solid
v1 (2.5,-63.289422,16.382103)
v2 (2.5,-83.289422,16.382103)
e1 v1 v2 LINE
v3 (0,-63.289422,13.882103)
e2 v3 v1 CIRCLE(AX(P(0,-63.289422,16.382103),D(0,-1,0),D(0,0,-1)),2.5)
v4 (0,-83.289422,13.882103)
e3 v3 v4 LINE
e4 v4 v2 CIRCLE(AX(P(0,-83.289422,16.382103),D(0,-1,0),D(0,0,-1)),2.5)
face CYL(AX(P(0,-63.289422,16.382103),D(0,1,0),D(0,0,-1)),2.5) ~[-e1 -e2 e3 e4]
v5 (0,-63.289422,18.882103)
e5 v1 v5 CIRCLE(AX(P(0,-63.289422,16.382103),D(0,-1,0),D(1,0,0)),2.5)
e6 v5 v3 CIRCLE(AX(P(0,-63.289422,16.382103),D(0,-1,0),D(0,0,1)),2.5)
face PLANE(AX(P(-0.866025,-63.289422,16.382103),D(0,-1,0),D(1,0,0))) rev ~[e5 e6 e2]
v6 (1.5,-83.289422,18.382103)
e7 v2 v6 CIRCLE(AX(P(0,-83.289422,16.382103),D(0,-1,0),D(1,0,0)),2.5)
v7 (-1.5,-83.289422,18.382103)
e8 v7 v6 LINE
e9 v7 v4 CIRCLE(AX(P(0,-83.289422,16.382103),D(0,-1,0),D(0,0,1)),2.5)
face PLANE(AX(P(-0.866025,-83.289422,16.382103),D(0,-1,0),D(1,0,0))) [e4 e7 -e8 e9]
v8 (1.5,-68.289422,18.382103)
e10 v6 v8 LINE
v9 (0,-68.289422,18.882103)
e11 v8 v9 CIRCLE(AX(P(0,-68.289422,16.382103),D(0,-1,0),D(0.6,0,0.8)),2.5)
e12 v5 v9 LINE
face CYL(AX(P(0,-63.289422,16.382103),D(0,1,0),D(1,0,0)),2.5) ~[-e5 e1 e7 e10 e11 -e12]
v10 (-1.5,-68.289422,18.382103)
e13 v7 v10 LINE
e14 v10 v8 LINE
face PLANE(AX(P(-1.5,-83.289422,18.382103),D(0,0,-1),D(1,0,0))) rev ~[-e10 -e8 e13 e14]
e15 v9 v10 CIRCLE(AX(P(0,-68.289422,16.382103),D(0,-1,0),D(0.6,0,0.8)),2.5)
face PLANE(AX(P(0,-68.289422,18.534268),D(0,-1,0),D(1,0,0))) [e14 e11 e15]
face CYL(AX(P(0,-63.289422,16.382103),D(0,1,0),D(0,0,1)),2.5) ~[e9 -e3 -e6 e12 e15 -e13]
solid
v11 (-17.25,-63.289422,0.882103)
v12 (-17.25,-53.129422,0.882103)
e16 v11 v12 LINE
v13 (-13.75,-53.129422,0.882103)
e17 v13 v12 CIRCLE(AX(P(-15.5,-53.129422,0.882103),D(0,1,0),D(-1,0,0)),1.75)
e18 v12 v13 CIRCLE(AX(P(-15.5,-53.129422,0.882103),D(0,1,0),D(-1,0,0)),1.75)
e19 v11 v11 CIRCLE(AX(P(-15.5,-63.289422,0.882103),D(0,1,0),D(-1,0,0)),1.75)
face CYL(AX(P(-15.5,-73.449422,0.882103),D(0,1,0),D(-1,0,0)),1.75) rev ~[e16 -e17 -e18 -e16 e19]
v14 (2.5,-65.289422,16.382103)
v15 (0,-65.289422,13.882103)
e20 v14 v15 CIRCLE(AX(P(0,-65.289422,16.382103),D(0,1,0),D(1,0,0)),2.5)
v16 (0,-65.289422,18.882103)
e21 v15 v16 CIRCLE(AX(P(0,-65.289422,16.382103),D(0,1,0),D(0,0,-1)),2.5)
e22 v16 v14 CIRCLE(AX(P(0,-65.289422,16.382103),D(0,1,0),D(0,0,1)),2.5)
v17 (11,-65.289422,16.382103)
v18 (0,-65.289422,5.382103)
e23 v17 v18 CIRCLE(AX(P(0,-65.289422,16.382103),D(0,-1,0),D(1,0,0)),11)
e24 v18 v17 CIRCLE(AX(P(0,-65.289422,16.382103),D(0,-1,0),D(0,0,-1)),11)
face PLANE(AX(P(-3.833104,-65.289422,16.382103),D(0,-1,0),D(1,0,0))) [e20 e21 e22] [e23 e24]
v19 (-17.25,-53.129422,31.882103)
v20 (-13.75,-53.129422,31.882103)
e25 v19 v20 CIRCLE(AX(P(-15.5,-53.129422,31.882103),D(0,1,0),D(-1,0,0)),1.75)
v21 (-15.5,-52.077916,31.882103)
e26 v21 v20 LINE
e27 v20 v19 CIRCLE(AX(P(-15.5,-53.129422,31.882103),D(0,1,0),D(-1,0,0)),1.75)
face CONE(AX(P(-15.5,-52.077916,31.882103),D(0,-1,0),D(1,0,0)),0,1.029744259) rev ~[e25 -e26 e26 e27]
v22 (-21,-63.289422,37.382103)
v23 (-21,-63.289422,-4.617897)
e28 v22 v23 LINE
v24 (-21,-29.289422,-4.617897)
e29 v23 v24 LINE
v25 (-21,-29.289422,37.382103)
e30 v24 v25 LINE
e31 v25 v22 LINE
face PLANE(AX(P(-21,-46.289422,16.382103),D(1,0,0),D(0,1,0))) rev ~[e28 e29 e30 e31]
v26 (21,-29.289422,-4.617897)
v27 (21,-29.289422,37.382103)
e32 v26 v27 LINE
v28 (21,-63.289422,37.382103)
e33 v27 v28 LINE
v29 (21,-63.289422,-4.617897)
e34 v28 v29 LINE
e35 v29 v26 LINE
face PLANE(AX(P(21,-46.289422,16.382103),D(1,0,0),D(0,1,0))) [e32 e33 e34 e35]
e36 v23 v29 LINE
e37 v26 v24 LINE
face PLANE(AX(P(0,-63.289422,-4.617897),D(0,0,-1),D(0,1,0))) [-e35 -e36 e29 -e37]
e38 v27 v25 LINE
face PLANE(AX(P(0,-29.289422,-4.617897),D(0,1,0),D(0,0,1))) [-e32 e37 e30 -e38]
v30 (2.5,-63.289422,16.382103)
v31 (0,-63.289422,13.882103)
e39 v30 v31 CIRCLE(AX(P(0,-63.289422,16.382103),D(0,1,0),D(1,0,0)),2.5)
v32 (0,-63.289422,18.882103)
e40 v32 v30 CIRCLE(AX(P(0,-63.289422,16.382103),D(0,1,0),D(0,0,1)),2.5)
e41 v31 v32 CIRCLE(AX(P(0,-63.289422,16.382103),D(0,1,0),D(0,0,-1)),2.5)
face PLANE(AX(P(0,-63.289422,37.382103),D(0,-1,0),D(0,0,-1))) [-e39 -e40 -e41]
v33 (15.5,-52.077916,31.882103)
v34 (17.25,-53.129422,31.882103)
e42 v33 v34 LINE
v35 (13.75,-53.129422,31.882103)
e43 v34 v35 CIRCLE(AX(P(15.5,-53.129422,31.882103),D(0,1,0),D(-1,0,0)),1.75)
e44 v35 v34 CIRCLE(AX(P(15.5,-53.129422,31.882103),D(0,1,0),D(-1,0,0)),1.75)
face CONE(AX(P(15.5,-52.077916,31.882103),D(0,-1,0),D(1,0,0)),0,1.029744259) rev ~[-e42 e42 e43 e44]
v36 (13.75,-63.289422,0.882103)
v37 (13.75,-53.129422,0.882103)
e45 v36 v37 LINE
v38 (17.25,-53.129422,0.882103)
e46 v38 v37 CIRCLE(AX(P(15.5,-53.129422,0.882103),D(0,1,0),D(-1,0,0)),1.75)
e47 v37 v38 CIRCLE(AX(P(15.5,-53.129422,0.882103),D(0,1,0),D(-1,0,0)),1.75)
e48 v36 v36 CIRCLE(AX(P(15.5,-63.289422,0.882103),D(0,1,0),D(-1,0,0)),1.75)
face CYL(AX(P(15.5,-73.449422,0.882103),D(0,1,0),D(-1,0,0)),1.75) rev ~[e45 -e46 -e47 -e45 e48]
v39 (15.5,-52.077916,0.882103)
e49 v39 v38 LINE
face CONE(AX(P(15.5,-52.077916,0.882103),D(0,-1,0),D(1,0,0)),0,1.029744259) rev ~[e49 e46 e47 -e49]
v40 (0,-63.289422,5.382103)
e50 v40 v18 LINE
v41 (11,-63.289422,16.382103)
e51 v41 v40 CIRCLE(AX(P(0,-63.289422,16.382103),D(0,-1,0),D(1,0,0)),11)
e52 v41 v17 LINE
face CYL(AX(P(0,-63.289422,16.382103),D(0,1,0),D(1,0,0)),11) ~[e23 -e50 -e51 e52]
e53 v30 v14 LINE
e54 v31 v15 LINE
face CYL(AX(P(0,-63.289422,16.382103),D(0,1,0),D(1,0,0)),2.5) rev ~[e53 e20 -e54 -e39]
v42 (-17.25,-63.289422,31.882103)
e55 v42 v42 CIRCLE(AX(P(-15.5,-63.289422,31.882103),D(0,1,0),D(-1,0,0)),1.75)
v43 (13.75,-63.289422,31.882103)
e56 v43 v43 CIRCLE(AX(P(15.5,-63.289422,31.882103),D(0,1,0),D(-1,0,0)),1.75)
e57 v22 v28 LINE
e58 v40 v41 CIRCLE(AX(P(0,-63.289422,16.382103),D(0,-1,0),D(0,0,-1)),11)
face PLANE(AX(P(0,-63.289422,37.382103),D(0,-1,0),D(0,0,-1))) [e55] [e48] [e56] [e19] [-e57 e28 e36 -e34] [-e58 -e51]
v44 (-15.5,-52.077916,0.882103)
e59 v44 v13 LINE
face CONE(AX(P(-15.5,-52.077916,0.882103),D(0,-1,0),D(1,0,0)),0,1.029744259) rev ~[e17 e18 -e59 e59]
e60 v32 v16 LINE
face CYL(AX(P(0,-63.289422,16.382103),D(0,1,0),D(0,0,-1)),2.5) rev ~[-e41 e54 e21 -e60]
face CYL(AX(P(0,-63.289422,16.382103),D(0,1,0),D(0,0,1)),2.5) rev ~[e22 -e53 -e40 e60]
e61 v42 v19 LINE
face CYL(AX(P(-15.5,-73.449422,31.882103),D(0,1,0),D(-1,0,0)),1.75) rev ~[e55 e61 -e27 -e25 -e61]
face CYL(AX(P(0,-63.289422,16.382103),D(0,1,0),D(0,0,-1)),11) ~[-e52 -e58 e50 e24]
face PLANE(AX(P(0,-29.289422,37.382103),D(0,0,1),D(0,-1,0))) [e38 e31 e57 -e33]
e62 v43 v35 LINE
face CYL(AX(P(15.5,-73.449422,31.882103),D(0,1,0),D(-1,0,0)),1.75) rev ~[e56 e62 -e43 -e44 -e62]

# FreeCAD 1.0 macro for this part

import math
import FreeCAD as App
import Part
import Sketcher

V = App.Vector
Q = App.Units.Quantity

doc = App.newDocument("Part")
params = doc.addObject("Spreadsheet::Sheet", "Params")
for row, (alias, value) in enumerate([
    ("sketch1_width", "34 mm"),
    ("sketch1_height", "42 mm"),
    ("pad1_length", "42 mm"),
    ("sketch2_radius", "11 mm"),
    ("sketch2_radius2", "2.5 mm"),
    ("pad2_length", "2 mm"),
    ("sketch3_diameter", "3.5 mm"),
    ("hole_diameter", "3.5 mm"),
    ("hole_depth", "10.16 mm"),
    ("sketch4_radius", "2.5 mm"),
    ("pad3_length", "20 mm"),
    ("sketch5_radius", "2.5 mm"),
    ("sketch5_width", "3 mm"),
    ("pocket1_length", "15 mm"),
], start=1):
    params.set(f"A{row}", alias)
    params.set(f"B{row}", "=" + value)
    params.setAlias(f"B{row}", alias)

body = doc.addObject("PartDesign::Body", "Body")

# Sketch on YZ plane
sketch1 = body.newObject("Sketcher::SketchObject", "Sketch")
sketch1.AttachmentSupport = (doc.getObject("YZ_Plane"), [""])
sketch1.MapMode = "FlatFace"
sketch1.addGeometry(Part.LineSegment(V(-29, 37, 0), V(-63, 37, 0)), False)
sketch1.addGeometry(Part.LineSegment(V(-63, 37, 0), V(-63, -5, 0)), False)
sketch1.addGeometry(Part.LineSegment(V(-63, -5, 0), V(-29, -5, 0)), False)
sketch1.addGeometry(Part.LineSegment(V(-29, -5, 0), V(-29, 37, 0)), False)
sketch1.addConstraint(Sketcher.Constraint("Coincident", 0, 2, 1, 1))
sketch1.addConstraint(Sketcher.Constraint("Coincident", 1, 2, 2, 1))
sketch1.addConstraint(Sketcher.Constraint("Coincident", 2, 2, 3, 1))
sketch1.addConstraint(Sketcher.Constraint("Coincident", 3, 2, 0, 1))
sketch1.addConstraint(Sketcher.Constraint("Horizontal", 0))
sketch1.addConstraint(Sketcher.Constraint("Vertical", 1))
sketch1.addConstraint(Sketcher.Constraint("Horizontal", 2))
sketch1.addConstraint(Sketcher.Constraint("Vertical", 3))
sketch1.addConstraint(Sketcher.Constraint("DistanceX", 0, 2, 0, 1, Q("34 mm")))
sketch1.addConstraint(Sketcher.Constraint("DistanceY", 1, 2, 1, 1, Q("42 mm")))
sketch1.addConstraint(Sketcher.Constraint("DistanceX", 0, 2, -1, 1, Q("63.289422 mm")))
sketch1.addConstraint(Sketcher.Constraint("DistanceY", -1, 1, 0, 2, Q("37.382103 mm")))
sketch1.setExpression("Constraints[8]", "Params.sketch1_width")
sketch1.setExpression("Constraints[9]", "Params.sketch1_height")
pad1 = body.newObject("PartDesign::Pad", "Pad")
pad1.Profile = sketch1
pad1.setExpression("Length", "Params.pad1_length")
pad1.Midplane = True

# Sketch on XZ plane
sketch2 = body.newObject("Sketcher::SketchObject", "Sketch001")
sketch2.AttachmentSupport = (doc.getObject("XZ_Plane"), [""])
sketch2.MapMode = "FlatFace"
sketch2.AttachmentOffset = App.Placement(V(0, 0, 63.289422), App.Rotation())
sketch2.addGeometry(Part.ArcOfCircle(Part.Circle(V(0, 16.4, 0), V(0, 0, 1), 11), math.radians(-90), math.radians(0)), False)
sketch2.addGeometry(Part.ArcOfCircle(Part.Circle(V(0, 16.4, 0), V(0, 0, 1), 11), math.radians(0), math.radians(270)), False)
sketch2.addGeometry(Part.ArcOfCircle(Part.Circle(V(0, 16.4, 0), V(0, 0, 1), 2.5), math.radians(90), math.radians(270)), False)
sketch2.addGeometry(Part.ArcOfCircle(Part.Circle(V(0, 16.4, 0), V(0, 0, 1), 2.5), math.radians(0), math.radians(90)), False)
sketch2.addGeometry(Part.ArcOfCircle(Part.Circle(V(0, 16.4, 0), V(0, 0, 1), 2.5), math.radians(-90), math.radians(0)), False)
sketch2.addConstraint(Sketcher.Constraint("Tangent", 0, 1, 1, 2))
sketch2.addConstraint(Sketcher.Constraint("Coincident", 1, 1, 0, 2))
sketch2.addConstraint(Sketcher.Constraint("Tangent", 2, 1, 3, 2))
sketch2.addConstraint(Sketcher.Constraint("Tangent", 3, 1, 4, 2))
sketch2.addConstraint(Sketcher.Constraint("Tangent", 4, 1, 2, 2))
sketch2.addConstraint(Sketcher.Constraint("Coincident", 2, 3, 0, 3))
sketch2.addConstraint(Sketcher.Constraint("PointOnObject", 0, 3, -2))
sketch2.addConstraint(Sketcher.Constraint("PointOnObject", 0, 1, -2))
sketch2.addConstraint(Sketcher.Constraint("PointOnObject", 2, 1, -2))
sketch2.addConstraint(Sketcher.Constraint("PointOnObject", 4, 1, -2))
sketch2.addConstraint(Sketcher.Constraint("Horizontal", 4, 3, 1, 1))
sketch2.addConstraint(Sketcher.Constraint("Horizontal", 1, 1, 3, 1))
sketch2.addConstraint(Sketcher.Constraint("Radius", 0, Q("11 mm")))
sketch2.addConstraint(Sketcher.Constraint("Radius", 2, Q("2.5 mm")))
sketch2.addConstraint(Sketcher.Constraint("DistanceY", -1, 1, 0, 3, Q("16.382103 mm")))
sketch2.setExpression("Constraints[12]", "Params.sketch2_radius")
sketch2.setExpression("Constraints[13]", "Params.sketch2_radius2")
pad2 = body.newObject("PartDesign::Pad", "Pad001")
pad2.Profile = sketch2
pad2.setExpression("Length", "Params.pad2_length")

# Sketch on XZ plane
sketch3 = body.newObject("Sketcher::SketchObject", "Sketch002")
sketch3.AttachmentSupport = (doc.getObject("XZ_Plane"), [""])
sketch3.MapMode = "FlatFace"
sketch3.AttachmentOffset = App.Placement(V(0, 0, 63.289422), App.Rotation())
sketch3.addGeometry(Part.Circle(V(-15.5, 31.9, 0), V(0, 0, 1), 1.8), False)
sketch3.addGeometry(Part.Circle(V(15.5, 31.9, 0), V(0, 0, 1), 1.8), False)
sketch3.addGeometry(Part.Circle(V(15.5, 0.9, 0), V(0, 0, 1), 1.8), False)
sketch3.addGeometry(Part.Circle(V(-15.5, 0.9, 0), V(0, 0, 1), 1.8), False)
sketch3.addConstraint(Sketcher.Constraint("Equal", 0, 1))
sketch3.addConstraint(Sketcher.Constraint("Equal", 1, 2))
sketch3.addConstraint(Sketcher.Constraint("Equal", 2, 3))
sketch3.addConstraint(Sketcher.Constraint("Symmetric", 0, 3, 1, 3, -2))
sketch3.addConstraint(Sketcher.Constraint("Symmetric", 2, 3, 3, 3, -2))
sketch3.addConstraint(Sketcher.Constraint("Vertical", 1, 3, 2, 3))
sketch3.addConstraint(Sketcher.Constraint("Diameter", 0, Q("3.5 mm")))
sketch3.addConstraint(Sketcher.Constraint("DistanceX", 0, 3, 1, 3, Q("31 mm")))
sketch3.addConstraint(Sketcher.Constraint("DistanceY", 2, 3, 1, 3, Q("31 mm")))
sketch3.addConstraint(Sketcher.Constraint("DistanceY", -1, 1, 0, 3, Q("31.882103 mm")))
sketch3.setExpression("Constraints[6]", "Params.sketch3_diameter")
doc.recompute()
hole = body.newObject("PartDesign::Hole", "Hole")
hole.Profile = sketch3
hole.ThreadType = "None"
hole.setExpression("Diameter", "Params.hole_diameter")
hole.DepthType = "Dimension"
hole.setExpression("Depth", "Params.hole_depth")
hole.DrillPoint = "Angled"
hole.DrillPointAngle = 118
body2 = doc.addObject("PartDesign::Body", "Body001")

# Sketch on XZ plane
sketch4 = body2.newObject("Sketcher::SketchObject", "Sketch003")
sketch4.AttachmentSupport = (doc.getObject("XZ_Plane001"), [""])
sketch4.MapMode = "FlatFace"
sketch4.AttachmentOffset = App.Placement(V(0, 0, 63.289422), App.Rotation())
sketch4.addGeometry(Part.ArcOfCircle(Part.Circle(V(0, 16.4, 0), V(0, 0, 1), 2.5), math.radians(90), math.radians(270)), False)
sketch4.addGeometry(Part.ArcOfCircle(Part.Circle(V(0, 16.4, 0), V(0, 0, 1), 2.5), math.radians(-90), math.radians(0)), False)
sketch4.addGeometry(Part.ArcOfCircle(Part.Circle(V(0, 16.4, 0), V(0, 0, 1), 2.5), math.radians(0), math.radians(90)), False)
sketch4.addConstraint(Sketcher.Constraint("Tangent", 0, 2, 1, 1))
sketch4.addConstraint(Sketcher.Constraint("Tangent", 1, 2, 2, 1))
sketch4.addConstraint(Sketcher.Constraint("Tangent", 2, 2, 0, 1))
sketch4.addConstraint(Sketcher.Constraint("PointOnObject", 0, 3, -2))
sketch4.addConstraint(Sketcher.Constraint("PointOnObject", 0, 2, -2))
sketch4.addConstraint(Sketcher.Constraint("PointOnObject", 2, 2, -2))
sketch4.addConstraint(Sketcher.Constraint("Horizontal", 2, 3, 1, 2))
sketch4.addConstraint(Sketcher.Constraint("Radius", 0, Q("2.5 mm")))
sketch4.addConstraint(Sketcher.Constraint("DistanceY", -1, 1, 0, 3, Q("16.382103 mm")))
sketch4.setExpression("Constraints[7]", "Params.sketch4_radius")
pad3 = body2.newObject("PartDesign::Pad", "Pad002")
pad3.Profile = sketch4
pad3.setExpression("Length", "Params.pad3_length")

# Sketch on XZ plane
sketch5 = body2.newObject("Sketcher::SketchObject", "Sketch004")
sketch5.AttachmentSupport = (doc.getObject("XZ_Plane001"), [""])
sketch5.MapMode = "FlatFace"
sketch5.AttachmentOffset = App.Placement(V(0, 0, 83.289422), App.Rotation())
sketch5.addGeometry(Part.ArcOfCircle(Part.Circle(V(0, 16.4, 0), V(0, 0, 1), 2.5), math.radians(53), math.radians(127)), False)
sketch5.addGeometry(Part.LineSegment(V(-1.5, 18.4, 0), V(1.5, 18.4, 0)), False)
sketch5.addConstraint(Sketcher.Constraint("Coincident", 0, 1, 1, 2))
sketch5.addConstraint(Sketcher.Constraint("Coincident", 1, 1, 0, 2))
sketch5.addConstraint(Sketcher.Constraint("Horizontal", 1))
sketch5.addConstraint(Sketcher.Constraint("PointOnObject", 0, 3, -2))
sketch5.addConstraint(Sketcher.Constraint("Radius", 0, Q("2.5 mm")))
sketch5.addConstraint(Sketcher.Constraint("DistanceX", 1, 1, 1, 2, Q("3 mm")))
sketch5.addConstraint(Sketcher.Constraint("DistanceY", -1, 1, 0, 3, Q("16.382103 mm")))
sketch5.setExpression("Constraints[4]", "Params.sketch5_radius")
sketch5.setExpression("Constraints[5]", "Params.sketch5_width")
pocket1 = body2.newObject("PartDesign::Pocket", "Pocket")
pocket1.Profile = sketch5
pocket1.setExpression("Length", "Params.pocket1_length")

doc.recompute()
